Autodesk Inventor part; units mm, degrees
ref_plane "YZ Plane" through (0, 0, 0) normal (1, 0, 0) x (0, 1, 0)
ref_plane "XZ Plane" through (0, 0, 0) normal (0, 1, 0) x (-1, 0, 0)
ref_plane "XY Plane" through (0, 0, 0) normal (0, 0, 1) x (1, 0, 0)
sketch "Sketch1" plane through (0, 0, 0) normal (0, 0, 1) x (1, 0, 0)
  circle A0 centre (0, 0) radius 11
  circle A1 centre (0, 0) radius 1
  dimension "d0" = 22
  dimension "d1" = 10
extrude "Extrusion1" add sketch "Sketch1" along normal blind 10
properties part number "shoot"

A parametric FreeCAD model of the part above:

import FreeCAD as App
import Part
import Sketcher

V = App.Vector

doc = App.newDocument("Part")
body = doc.addObject("PartDesign::Body", "Body")

sketch1 = doc.addObject("Sketcher::SketchObject", "Sketch")
body.addObject(sketch1)
sketch1.AttachmentSupport = (doc.XY_Plane, [""])
sketch1.MapMode = "FlatFace"
sketch1.addGeometry([
    Part.Circle(V(0, 0, 0), V(0, 0, 1), 11),
    Part.Circle(V(0, 0, 0), V(0, 0, 1), 1),
], False)
sketch1.addConstraint([
    Sketcher.Constraint("Coincident", 0, 3, -1, 1),
    Sketcher.Constraint("Coincident", 1, 3, -1, 1),
    Sketcher.Constraint("Diameter", 0, 22.0),
    Sketcher.Constraint("Diameter", 1, 2.0),
])
pad1 = doc.addObject("PartDesign::Pad", "Pad")
body.addObject(pad1)
pad1.Profile = sketch1
pad1.Length = 10

doc.recompute()
